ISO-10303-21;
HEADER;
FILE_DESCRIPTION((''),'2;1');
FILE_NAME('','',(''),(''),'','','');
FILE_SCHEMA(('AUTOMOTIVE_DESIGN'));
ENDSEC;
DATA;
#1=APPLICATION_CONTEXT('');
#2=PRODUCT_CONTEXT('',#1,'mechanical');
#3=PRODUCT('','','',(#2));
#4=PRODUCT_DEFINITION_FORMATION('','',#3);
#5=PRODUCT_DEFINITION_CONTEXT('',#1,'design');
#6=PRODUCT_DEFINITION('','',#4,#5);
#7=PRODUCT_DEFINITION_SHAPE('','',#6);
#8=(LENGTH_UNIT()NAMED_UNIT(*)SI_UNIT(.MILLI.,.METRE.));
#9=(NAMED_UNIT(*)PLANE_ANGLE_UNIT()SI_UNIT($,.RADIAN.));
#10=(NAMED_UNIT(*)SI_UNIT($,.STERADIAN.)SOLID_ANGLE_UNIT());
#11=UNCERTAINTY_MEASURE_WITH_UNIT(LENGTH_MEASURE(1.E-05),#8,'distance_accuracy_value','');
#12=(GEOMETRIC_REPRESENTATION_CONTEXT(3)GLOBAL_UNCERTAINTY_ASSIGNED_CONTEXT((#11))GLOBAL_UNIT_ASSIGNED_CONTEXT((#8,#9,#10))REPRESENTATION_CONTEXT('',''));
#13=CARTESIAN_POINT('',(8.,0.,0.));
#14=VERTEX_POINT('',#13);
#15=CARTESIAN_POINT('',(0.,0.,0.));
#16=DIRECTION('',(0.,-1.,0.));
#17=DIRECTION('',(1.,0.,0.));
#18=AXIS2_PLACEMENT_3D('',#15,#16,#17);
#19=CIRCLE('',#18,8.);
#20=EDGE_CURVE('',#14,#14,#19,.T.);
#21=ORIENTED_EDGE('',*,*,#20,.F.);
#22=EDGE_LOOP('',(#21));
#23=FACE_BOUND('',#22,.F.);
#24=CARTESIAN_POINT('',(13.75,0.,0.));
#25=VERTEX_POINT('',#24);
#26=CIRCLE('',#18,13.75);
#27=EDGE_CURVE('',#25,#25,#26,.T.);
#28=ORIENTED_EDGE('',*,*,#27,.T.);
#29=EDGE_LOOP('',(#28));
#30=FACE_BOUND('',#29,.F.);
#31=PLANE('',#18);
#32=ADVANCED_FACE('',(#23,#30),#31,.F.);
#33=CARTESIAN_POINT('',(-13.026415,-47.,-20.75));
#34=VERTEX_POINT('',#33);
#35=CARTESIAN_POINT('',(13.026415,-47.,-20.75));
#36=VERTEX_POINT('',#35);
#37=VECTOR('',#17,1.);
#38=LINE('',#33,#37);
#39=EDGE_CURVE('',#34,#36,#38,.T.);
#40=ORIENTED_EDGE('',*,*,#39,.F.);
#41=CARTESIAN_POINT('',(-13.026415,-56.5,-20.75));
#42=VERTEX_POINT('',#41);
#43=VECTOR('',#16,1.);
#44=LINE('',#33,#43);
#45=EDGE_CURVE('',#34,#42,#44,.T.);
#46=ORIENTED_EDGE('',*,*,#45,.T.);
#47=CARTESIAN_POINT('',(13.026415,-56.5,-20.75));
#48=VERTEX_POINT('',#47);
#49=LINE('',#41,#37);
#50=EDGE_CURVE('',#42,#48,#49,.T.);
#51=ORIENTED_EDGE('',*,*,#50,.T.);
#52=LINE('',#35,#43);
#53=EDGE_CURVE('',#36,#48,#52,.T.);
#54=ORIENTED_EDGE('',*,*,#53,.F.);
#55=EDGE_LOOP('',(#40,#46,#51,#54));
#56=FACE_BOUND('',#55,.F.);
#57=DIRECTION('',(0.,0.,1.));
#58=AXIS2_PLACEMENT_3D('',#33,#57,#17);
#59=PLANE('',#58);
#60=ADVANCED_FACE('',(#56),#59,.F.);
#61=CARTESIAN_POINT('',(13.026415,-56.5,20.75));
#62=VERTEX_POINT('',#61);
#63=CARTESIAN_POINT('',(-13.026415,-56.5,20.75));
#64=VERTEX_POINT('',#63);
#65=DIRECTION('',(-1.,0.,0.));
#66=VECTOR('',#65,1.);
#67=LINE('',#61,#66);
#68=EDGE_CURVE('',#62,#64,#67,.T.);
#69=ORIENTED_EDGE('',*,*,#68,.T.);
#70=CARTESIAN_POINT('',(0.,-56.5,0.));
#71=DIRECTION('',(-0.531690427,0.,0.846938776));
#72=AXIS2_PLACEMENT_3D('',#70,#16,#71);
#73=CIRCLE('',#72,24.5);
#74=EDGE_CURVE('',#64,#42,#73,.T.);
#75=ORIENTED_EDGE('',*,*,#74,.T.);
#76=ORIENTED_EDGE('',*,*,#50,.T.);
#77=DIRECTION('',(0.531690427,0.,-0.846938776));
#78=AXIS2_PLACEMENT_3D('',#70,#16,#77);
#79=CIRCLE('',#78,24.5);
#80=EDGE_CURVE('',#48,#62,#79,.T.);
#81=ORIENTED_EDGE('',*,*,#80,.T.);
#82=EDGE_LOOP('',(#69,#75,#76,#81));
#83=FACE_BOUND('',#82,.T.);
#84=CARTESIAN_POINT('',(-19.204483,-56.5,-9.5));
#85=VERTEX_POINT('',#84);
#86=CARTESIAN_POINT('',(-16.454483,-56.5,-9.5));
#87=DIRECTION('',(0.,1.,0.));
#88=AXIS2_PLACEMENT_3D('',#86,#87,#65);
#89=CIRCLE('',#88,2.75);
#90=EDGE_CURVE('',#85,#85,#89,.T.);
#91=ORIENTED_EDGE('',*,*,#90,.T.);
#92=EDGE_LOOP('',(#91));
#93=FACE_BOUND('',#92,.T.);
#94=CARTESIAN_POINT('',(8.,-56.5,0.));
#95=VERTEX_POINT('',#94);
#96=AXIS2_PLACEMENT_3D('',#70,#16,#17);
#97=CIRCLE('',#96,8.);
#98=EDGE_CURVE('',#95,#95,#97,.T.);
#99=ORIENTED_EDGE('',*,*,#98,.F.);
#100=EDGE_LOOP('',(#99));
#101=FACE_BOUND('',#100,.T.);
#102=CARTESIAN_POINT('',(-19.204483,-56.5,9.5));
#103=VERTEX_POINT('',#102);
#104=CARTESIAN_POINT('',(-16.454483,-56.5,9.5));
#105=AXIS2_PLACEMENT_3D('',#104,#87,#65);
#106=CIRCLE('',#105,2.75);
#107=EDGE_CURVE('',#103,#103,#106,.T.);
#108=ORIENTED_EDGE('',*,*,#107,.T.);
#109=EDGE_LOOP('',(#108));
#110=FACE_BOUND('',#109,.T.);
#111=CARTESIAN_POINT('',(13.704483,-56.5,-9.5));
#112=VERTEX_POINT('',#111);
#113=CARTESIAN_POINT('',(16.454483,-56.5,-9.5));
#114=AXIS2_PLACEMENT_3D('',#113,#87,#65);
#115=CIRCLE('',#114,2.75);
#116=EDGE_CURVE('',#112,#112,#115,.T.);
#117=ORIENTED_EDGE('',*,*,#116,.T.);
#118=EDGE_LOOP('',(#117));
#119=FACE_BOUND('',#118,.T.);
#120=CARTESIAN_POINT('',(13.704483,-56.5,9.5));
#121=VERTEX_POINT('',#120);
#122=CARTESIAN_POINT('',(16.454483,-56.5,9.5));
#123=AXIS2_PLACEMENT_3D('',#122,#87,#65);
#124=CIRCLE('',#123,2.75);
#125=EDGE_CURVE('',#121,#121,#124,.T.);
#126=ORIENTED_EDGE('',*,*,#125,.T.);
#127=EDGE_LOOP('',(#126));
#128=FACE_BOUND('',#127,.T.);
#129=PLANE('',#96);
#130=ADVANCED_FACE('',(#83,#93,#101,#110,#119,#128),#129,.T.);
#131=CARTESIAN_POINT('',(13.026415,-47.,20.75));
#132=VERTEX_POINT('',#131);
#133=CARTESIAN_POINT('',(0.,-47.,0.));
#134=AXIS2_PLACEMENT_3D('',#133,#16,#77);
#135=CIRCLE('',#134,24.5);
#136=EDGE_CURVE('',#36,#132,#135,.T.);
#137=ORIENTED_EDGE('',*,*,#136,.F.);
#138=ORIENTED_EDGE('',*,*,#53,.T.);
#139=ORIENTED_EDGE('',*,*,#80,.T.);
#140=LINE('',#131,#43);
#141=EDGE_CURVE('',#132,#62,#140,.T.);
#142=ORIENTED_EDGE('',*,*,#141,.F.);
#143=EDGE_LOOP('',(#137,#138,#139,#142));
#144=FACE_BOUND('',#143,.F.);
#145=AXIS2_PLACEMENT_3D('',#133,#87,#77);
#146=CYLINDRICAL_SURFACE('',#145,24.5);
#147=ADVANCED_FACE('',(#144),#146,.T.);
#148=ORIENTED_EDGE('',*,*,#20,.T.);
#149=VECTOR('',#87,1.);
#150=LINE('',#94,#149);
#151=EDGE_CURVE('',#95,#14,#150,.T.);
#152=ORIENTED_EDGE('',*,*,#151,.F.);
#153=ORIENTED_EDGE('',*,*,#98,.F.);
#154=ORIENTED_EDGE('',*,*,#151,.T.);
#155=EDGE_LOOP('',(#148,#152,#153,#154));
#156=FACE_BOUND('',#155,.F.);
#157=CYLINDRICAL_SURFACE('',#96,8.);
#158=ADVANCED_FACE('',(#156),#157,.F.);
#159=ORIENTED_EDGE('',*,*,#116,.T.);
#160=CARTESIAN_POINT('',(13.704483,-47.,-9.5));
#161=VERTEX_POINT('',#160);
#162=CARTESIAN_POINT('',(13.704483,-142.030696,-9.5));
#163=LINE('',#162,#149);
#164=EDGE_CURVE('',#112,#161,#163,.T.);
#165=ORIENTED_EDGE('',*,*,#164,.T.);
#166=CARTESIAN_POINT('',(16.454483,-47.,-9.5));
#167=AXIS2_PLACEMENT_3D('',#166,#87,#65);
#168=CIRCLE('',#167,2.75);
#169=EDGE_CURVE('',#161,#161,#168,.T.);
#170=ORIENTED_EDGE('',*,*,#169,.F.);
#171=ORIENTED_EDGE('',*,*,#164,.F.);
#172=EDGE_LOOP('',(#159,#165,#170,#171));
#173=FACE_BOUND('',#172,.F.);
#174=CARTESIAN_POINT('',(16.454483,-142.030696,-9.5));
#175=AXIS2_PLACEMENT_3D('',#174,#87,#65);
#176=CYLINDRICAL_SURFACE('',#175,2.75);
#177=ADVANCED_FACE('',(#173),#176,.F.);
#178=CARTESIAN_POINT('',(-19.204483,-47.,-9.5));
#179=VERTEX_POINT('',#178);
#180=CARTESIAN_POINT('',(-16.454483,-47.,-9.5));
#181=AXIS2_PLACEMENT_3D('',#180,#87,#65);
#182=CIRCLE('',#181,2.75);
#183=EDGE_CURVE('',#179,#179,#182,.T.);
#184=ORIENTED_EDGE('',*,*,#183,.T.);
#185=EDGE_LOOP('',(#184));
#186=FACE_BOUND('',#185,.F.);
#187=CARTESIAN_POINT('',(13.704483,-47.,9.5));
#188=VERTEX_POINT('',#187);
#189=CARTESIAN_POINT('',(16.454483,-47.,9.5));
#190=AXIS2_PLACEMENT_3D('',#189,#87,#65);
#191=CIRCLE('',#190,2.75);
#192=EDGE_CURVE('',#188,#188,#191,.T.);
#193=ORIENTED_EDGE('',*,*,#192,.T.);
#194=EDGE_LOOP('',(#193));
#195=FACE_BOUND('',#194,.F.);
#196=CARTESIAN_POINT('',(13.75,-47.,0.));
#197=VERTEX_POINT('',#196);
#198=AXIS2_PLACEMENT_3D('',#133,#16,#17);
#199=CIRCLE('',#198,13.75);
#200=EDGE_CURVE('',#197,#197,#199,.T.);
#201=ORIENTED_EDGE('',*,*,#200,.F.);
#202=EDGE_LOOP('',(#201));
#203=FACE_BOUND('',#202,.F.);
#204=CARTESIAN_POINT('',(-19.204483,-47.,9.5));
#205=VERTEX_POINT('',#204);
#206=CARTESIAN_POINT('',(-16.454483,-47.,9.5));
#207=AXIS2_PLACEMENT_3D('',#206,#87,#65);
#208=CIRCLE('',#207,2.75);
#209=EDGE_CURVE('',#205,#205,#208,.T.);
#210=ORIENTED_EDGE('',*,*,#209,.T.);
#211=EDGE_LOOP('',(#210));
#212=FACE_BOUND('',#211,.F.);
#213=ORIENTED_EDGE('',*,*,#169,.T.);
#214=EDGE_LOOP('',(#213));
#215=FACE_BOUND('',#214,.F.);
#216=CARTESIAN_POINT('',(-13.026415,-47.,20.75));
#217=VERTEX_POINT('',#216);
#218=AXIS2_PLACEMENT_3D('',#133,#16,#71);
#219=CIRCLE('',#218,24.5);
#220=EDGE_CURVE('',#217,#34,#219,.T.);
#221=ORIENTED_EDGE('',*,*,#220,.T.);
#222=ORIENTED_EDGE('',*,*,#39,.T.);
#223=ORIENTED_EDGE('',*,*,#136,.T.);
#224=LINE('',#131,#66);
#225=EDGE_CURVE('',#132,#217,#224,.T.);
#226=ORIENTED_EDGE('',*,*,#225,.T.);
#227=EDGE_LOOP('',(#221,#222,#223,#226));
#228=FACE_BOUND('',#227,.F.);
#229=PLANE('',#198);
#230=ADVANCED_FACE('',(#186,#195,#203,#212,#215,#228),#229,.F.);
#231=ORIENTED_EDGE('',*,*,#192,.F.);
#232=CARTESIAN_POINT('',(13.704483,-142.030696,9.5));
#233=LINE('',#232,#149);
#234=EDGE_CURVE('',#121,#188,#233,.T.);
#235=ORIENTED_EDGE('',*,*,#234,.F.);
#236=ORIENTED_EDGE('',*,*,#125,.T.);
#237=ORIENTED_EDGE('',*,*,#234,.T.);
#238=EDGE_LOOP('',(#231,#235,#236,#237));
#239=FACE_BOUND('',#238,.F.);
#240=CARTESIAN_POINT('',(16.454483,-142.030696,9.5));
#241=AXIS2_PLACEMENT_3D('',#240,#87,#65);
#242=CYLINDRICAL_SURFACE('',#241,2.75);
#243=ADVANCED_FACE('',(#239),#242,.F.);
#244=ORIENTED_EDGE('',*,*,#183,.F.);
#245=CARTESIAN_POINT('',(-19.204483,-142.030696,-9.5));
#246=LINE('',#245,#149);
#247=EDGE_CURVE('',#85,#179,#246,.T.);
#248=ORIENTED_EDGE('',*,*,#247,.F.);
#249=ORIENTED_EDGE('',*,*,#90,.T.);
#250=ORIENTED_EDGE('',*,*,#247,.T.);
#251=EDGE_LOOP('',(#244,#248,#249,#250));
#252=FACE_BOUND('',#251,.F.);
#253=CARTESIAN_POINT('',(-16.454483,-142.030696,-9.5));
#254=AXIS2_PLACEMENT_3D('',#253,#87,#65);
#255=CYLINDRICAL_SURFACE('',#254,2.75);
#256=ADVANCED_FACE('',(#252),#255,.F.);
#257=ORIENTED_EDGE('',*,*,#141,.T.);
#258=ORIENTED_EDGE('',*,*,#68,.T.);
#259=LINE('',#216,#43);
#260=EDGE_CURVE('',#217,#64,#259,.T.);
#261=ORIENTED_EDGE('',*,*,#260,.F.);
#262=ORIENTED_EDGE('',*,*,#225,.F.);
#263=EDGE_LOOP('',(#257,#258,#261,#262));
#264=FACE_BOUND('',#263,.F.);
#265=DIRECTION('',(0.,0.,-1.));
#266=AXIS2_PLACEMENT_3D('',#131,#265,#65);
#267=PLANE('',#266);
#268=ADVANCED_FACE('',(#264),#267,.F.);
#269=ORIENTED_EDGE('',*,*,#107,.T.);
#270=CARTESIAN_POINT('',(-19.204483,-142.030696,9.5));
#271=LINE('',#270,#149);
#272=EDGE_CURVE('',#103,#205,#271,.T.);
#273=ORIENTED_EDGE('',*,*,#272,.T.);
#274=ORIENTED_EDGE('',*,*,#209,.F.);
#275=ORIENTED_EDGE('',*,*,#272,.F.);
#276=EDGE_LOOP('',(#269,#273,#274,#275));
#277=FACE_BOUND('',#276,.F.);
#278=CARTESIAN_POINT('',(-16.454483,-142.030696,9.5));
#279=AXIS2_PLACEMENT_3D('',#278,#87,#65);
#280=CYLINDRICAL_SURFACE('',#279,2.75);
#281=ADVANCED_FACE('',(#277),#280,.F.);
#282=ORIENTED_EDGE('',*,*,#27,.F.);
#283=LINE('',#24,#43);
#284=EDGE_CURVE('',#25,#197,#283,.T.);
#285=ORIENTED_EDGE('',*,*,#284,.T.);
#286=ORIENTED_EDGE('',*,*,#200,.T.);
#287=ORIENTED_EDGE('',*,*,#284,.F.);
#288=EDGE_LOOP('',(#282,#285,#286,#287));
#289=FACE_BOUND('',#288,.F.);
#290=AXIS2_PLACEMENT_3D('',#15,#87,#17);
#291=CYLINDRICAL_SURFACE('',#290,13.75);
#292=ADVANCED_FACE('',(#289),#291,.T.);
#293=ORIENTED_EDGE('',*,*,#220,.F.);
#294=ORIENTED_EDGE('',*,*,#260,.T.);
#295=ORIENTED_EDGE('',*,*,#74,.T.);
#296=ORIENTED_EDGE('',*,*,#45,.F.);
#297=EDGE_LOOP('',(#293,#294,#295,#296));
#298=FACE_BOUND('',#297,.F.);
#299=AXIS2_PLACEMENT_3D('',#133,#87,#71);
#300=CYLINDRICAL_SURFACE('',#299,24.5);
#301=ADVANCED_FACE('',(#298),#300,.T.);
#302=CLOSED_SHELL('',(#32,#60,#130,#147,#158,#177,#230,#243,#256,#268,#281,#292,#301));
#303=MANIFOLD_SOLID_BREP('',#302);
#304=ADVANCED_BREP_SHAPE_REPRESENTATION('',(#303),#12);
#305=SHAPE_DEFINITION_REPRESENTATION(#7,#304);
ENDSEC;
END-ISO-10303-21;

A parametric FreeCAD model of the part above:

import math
import FreeCAD as App
import Part
import Sketcher
from FreeCAD import Vector

doc = App.newDocument("Part")
body = doc.addObject("PartDesign::Body", "Body")

sketch1 = doc.addObject("Sketcher::SketchObject", "Sketch")
body.addObject(sketch1)
sketch1.AttachmentSupport = (doc.XZ_Plane, [""])
sketch1.MapMode = "FlatFace"
sketch1.addGeometry(Part.Circle(Vector(0, 0, 0), Vector(0, 0, 1), 14), False)
sketch1.addConstraint(Sketcher.Constraint("Coincident", 0, 3, -1, 1))
sketch1.addConstraint(Sketcher.Constraint("Diameter", 0, 27.5))
pad1 = doc.addObject("PartDesign::Pad", "Pad")
body.addObject(pad1)
pad1.Profile = sketch1
pad1.Length = 47

sketch2 = doc.addObject("Sketcher::SketchObject", "Sketch001")
body.addObject(sketch2)
sketch2.AttachmentSupport = (doc.XZ_Plane, [""])
sketch2.MapMode = "FlatFace"
sketch2.AttachmentOffset = App.Placement(Vector(0, 0, 47), App.Rotation())
sketch2.addGeometry(Part.LineSegment(Vector(13, 21, 0), Vector(-13, 21, 0)), False)
sketch2.addGeometry(Part.ArcOfCircle(Part.Circle(Vector(0, 0, 0), Vector(0, 0, 1), 24), math.radians(122), math.radians(238)), False)
sketch2.addGeometry(Part.LineSegment(Vector(-13, -21, 0), Vector(13, -21, 0)), False)
sketch2.addGeometry(Part.ArcOfCircle(Part.Circle(Vector(0, 0, 0), Vector(0, 0, 1), 24), math.radians(-58), math.radians(58)), False)
sketch2.addConstraint(Sketcher.Constraint("Coincident", 0, 2, 1, 1))
sketch2.addConstraint(Sketcher.Constraint("Coincident", 1, 2, 2, 1))
sketch2.addConstraint(Sketcher.Constraint("Coincident", 2, 2, 3, 1))
sketch2.addConstraint(Sketcher.Constraint("Coincident", 3, 2, 0, 1))
sketch2.addConstraint(Sketcher.Constraint("Horizontal", 0))
sketch2.addConstraint(Sketcher.Constraint("Horizontal", 2))
sketch2.addConstraint(Sketcher.Constraint("Coincident", 1, 3, -1, 1))
sketch2.addConstraint(Sketcher.Constraint("Coincident", 3, 3, -1, 1))
sketch2.addConstraint(Sketcher.Constraint("Equal", 1, 3))
sketch2.addConstraint(Sketcher.Constraint("Vertical", 0, 2, 1, 2))
sketch2.addConstraint(Sketcher.Constraint("Radius", 1, 24.5))
sketch2.addConstraint(Sketcher.Constraint("DistanceY", 1, 2, 0, 2, 41.5))
pad2 = doc.addObject("PartDesign::Pad", "Pad001")
body.addObject(pad2)
pad2.Profile = sketch2
pad2.Length = 9.5

sketch3 = doc.addObject("Sketcher::SketchObject", "Sketch002")
body.addObject(sketch3)
sketch3.AttachmentSupport = (doc.XZ_Plane, [""])
sketch3.MapMode = "FlatFace"
sketch3.AttachmentOffset = App.Placement(Vector(0, 0, 56.5), App.Rotation())
sketch3.addGeometry(Part.Circle(Vector(0, 0, 0), Vector(0, 0, 1), 8), False)
sketch3.addConstraint(Sketcher.Constraint("Coincident", 0, 3, -1, 1))
sketch3.addConstraint(Sketcher.Constraint("Diameter", 0, 16.0))
pocket1 = doc.addObject("PartDesign::Pocket", "Pocket")
body.addObject(pocket1)
pocket1.Profile = sketch3
pocket1.Type = "ThroughAll"

sketch4 = doc.addObject("Sketcher::SketchObject", "Sketch003")
body.addObject(sketch4)
sketch4.AttachmentSupport = (doc.XZ_Plane, [""])
sketch4.MapMode = "FlatFace"
sketch4.AttachmentOffset = App.Placement(Vector(0, 0, 56.5), App.Rotation())
sketch4.addGeometry(Part.Circle(Vector(-16.5, 9.5, 0), Vector(0, 0, 1), 2.8), False)
sketch4.addGeometry(Part.Circle(Vector(-16.5, -9.5, 0), Vector(0, 0, 1), 2.8), False)
sketch4.addGeometry(Part.Circle(Vector(16.5, 9.5, 0), Vector(0, 0, 1), 2.8), False)
sketch4.addGeometry(Part.Circle(Vector(16.5, -9.5, 0), Vector(0, 0, 1), 2.8), False)
sketch4.addConstraint(Sketcher.Constraint("Equal", 0, 1))
sketch4.addConstraint(Sketcher.Constraint("Equal", 1, 2))
sketch4.addConstraint(Sketcher.Constraint("Equal", 2, 3))
sketch4.addConstraint(Sketcher.Constraint("Symmetric", 1, 3, 2, 3, -1, 1))
sketch4.addConstraint(Sketcher.Constraint("Symmetric", 0, 3, 3, 3, -1, 1))
sketch4.addConstraint(Sketcher.Constraint("Symmetric", 0, 3, 2, 3, -2))
sketch4.addConstraint(Sketcher.Constraint("Diameter", 0, 5.5))
sketch4.addConstraint(Sketcher.Constraint("DistanceY", 1, 3, 0, 3, 19.0))
sketch4.addConstraint(Sketcher.Constraint("DistanceX", 0, 3, -1, 1, 16.454483))
doc.recompute()
hole = doc.addObject("PartDesign::Hole", "Hole")
body.addObject(hole)
hole.Profile = sketch4
hole.ThreadType = "None"
hole.Diameter = 5.5
hole.DepthType = "ThroughAll"

doc.recompute()
